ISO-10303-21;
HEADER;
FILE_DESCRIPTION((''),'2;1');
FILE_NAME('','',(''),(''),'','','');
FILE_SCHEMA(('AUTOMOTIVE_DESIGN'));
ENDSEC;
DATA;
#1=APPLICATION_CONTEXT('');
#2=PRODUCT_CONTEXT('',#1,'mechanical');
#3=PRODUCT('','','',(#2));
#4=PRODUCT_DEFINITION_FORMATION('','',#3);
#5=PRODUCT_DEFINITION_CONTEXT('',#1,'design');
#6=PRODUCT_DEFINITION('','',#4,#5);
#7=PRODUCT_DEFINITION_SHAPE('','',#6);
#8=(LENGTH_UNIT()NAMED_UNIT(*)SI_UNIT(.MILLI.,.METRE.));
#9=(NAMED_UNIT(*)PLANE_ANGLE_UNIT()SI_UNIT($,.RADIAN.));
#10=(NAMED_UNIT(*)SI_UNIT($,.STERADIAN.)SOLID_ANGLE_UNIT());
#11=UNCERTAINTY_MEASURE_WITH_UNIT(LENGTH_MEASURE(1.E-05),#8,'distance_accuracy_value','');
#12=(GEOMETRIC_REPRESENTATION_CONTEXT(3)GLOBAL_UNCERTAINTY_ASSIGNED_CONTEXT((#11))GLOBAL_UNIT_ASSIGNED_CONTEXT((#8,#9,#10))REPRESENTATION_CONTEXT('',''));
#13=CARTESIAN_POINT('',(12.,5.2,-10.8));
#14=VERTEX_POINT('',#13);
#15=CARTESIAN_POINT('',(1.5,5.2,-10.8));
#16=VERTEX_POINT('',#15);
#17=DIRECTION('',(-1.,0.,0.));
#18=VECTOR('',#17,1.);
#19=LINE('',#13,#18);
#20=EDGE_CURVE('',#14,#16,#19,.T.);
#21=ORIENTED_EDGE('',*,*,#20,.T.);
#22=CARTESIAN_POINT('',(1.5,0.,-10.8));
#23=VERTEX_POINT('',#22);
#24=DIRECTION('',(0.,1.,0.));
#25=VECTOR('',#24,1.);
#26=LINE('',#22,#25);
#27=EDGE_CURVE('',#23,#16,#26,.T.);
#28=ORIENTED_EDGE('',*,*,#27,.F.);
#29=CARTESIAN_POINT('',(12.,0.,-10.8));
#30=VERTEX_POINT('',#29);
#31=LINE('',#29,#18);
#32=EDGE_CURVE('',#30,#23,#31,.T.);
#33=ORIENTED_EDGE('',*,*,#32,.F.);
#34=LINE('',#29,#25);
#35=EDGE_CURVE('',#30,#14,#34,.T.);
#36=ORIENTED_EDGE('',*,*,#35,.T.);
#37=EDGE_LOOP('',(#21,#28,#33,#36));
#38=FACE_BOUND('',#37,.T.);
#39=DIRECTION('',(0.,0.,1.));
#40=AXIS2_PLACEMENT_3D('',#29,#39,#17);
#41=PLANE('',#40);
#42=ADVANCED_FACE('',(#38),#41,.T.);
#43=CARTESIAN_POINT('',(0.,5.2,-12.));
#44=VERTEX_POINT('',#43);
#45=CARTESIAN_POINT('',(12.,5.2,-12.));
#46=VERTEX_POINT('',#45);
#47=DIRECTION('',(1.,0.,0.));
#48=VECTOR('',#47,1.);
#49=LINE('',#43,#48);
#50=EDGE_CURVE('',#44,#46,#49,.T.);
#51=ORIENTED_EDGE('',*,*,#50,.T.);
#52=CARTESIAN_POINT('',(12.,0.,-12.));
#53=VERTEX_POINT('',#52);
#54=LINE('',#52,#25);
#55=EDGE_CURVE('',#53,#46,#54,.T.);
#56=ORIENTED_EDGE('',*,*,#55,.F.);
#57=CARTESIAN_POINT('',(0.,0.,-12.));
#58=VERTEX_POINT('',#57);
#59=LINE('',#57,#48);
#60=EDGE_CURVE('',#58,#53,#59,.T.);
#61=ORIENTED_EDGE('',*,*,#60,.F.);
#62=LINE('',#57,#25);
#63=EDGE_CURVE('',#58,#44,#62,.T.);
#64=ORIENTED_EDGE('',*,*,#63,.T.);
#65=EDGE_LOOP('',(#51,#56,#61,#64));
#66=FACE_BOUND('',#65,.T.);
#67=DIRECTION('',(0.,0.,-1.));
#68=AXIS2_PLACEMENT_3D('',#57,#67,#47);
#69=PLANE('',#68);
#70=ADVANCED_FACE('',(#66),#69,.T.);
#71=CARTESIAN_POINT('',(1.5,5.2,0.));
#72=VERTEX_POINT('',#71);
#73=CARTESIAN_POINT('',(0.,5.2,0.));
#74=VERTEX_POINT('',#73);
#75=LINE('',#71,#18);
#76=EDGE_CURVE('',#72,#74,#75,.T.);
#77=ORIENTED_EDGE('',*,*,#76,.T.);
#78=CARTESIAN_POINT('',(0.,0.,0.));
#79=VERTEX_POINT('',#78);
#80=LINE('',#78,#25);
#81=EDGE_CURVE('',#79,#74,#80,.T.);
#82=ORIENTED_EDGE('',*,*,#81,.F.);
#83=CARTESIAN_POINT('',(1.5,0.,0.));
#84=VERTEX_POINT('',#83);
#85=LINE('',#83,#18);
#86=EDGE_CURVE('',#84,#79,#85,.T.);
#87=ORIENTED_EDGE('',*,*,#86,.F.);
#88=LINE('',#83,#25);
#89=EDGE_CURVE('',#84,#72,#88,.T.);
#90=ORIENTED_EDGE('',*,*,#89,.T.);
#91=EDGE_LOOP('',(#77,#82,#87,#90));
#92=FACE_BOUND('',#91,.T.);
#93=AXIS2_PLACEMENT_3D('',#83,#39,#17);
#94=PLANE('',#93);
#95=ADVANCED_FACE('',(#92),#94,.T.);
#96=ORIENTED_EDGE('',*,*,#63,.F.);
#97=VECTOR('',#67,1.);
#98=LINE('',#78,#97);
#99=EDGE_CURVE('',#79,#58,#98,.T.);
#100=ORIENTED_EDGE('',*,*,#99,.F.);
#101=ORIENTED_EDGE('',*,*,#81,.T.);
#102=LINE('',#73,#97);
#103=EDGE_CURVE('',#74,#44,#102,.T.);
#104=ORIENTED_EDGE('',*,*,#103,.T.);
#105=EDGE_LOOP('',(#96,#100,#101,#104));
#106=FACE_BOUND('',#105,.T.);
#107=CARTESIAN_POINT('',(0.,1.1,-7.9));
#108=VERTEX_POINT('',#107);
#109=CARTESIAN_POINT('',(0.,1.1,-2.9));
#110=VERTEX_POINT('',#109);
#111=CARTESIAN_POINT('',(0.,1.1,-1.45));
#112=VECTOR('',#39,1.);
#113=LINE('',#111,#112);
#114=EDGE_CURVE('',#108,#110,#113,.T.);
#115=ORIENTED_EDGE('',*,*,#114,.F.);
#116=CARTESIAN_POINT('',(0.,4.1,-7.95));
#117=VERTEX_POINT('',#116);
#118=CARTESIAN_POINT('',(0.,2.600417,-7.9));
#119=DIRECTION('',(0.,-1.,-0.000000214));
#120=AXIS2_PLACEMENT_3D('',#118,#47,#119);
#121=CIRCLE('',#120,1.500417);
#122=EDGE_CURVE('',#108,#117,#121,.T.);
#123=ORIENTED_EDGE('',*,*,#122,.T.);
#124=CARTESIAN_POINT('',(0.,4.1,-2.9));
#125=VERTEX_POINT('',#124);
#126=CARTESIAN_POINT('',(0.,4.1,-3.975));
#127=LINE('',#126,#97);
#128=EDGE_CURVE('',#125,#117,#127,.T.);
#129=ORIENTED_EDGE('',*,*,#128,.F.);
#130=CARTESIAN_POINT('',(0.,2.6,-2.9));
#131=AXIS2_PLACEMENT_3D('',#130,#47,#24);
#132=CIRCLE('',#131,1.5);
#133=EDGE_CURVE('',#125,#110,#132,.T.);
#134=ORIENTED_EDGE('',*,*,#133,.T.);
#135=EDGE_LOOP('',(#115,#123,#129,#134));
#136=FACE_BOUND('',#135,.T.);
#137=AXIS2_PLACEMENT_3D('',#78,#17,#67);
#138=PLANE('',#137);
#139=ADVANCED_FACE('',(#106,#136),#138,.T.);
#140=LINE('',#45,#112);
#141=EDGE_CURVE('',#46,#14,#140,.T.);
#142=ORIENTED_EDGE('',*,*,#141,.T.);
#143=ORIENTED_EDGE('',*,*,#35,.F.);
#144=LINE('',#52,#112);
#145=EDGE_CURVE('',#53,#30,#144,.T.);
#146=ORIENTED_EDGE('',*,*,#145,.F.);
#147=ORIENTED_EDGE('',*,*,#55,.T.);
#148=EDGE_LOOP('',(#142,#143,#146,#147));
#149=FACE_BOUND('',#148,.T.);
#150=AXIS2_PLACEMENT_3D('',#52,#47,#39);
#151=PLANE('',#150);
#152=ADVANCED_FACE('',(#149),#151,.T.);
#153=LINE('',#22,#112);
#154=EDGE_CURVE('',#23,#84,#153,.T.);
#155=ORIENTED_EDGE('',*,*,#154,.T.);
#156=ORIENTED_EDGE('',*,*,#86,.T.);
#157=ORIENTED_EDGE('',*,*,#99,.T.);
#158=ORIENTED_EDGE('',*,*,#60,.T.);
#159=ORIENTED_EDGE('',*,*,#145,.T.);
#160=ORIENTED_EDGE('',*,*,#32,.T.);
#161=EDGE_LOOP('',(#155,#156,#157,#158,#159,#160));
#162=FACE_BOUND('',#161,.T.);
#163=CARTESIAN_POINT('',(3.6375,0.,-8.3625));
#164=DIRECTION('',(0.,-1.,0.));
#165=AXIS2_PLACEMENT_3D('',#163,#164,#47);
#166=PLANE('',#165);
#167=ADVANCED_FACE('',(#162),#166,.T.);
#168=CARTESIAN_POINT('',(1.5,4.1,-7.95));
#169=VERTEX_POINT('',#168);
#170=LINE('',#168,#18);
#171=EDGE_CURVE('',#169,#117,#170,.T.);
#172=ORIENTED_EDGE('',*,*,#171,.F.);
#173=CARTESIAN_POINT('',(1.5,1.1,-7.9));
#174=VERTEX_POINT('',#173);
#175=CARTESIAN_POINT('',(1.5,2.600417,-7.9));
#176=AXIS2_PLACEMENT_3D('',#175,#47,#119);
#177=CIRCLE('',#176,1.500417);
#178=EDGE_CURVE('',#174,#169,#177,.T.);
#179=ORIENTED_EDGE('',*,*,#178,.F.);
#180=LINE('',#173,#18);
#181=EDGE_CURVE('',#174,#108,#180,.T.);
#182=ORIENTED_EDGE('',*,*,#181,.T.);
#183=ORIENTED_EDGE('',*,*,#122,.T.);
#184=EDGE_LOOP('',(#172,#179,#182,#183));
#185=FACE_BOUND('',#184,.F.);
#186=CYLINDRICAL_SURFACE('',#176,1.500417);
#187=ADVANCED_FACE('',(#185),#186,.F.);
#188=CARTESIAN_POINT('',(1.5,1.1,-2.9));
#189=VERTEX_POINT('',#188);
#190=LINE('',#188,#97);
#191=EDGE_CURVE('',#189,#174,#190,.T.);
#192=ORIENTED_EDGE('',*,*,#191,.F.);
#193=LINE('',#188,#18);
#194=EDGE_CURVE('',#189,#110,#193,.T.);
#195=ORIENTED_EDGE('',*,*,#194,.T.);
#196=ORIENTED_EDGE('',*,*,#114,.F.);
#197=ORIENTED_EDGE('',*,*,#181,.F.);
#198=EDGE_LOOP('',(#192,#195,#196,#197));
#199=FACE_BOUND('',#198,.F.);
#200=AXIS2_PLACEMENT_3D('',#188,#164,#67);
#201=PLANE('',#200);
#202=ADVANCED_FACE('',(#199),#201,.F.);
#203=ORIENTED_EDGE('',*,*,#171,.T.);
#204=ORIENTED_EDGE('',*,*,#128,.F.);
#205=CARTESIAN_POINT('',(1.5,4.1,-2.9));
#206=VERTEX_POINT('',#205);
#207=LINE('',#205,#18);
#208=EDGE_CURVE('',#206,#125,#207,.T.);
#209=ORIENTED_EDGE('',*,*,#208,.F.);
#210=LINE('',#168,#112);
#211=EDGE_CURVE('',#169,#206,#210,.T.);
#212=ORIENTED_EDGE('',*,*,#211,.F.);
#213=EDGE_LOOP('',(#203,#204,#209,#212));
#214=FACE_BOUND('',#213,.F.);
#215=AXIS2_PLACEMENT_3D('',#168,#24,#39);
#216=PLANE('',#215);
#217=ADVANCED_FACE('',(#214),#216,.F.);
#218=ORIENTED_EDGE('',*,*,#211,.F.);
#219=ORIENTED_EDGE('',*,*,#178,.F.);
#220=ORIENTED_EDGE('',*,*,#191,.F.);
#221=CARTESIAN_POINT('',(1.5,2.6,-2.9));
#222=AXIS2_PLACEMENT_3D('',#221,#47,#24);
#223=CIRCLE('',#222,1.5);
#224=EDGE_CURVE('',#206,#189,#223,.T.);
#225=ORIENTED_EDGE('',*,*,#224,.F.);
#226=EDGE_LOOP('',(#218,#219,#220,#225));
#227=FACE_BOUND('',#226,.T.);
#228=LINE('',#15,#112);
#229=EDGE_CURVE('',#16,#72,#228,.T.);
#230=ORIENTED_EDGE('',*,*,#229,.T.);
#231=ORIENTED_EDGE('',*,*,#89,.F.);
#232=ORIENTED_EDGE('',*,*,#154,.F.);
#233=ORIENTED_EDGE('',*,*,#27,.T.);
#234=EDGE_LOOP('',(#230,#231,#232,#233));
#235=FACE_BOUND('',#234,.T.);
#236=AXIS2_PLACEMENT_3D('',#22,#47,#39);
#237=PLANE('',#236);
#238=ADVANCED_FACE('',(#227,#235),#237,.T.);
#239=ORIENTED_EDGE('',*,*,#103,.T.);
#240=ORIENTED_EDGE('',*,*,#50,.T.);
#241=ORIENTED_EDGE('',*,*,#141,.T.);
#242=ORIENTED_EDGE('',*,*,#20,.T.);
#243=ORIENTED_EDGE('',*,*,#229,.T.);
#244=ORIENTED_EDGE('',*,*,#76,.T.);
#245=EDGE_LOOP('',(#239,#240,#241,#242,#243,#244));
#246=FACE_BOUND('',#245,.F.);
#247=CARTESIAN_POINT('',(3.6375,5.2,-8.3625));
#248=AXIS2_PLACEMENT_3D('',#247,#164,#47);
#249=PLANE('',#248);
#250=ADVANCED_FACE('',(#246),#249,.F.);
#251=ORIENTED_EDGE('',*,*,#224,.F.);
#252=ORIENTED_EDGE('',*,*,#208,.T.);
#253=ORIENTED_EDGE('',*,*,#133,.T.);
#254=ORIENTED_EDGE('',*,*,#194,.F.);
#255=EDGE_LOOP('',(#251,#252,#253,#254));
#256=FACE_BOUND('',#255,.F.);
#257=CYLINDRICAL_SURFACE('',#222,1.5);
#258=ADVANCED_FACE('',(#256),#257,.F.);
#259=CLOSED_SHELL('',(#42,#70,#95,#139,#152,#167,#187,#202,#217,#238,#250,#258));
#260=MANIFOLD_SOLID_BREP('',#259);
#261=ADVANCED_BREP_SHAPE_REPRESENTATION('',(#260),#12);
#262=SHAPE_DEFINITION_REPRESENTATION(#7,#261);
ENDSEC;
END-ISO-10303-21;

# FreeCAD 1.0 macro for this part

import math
import FreeCAD as App
import Part
import Sketcher
Q = App.Units.Quantity


def add_polygon(sketch, points):
    """Adds a closed chain of lines whose ends are joined by coincident constraints."""
    first, n = sketch.GeometryCount, len(points)
    for a, b in zip(points, points[1:] + points[:1]):
        sketch.addGeometry(Part.LineSegment(App.Vector(*a, 0), App.Vector(*b, 0)), False)
    for i in range(n):
        sketch.addConstraint(Sketcher.Constraint("Coincident", first + i, 2, first + (i + 1) % n, 1))

doc = App.newDocument("Part")
params = doc.addObject("Spreadsheet::Sheet", "Params")
for row, (alias, value) in enumerate([
    ("sketch1_width", "12 mm"),
    ("sketch1_width2", "1.5 mm"),
    ("sketch1_height", "1.2 mm"),
    ("pad1_length", "5.2 mm"),
    ("sketch2_radius", "1.5 mm"),
    ("sketch2_height", "5 mm"),
    ("sketch2_height2", "5.05 mm"),
    ("pocket1_length", "25.4 mm"),
], start=1):
    params.set(f"A{row}", alias)
    params.set(f"B{row}", "=" + value)
    params.setAlias(f"B{row}", alias)

body = doc.addObject("PartDesign::Body", "Body")

# Sketch on XZ plane
sketch1 = body.newObject("Sketcher::SketchObject", "Sketch")
sketch1.AttachmentSupport = (doc.getObject("XZ_Plane"), [""])
sketch1.MapMode = "FlatFace"
add_polygon(sketch1, [(1.5, 0), (0, 0), (0, -12), (12, -12), (12, -10.8), (1.5, -10.8)])  # lines 0-5
sketch1.addConstraint([
    Sketcher.Constraint("Horizontal", 0),
    Sketcher.Constraint("Vertical", 1),
    Sketcher.Constraint("Horizontal", 2),
    Sketcher.Constraint("Vertical", 3),
    Sketcher.Constraint("Horizontal", 4),
    Sketcher.Constraint("Vertical", 5),
    Sketcher.Constraint("Coincident", 0, 2, -1, 1),
    Sketcher.Constraint("Equal", 2, 1),
    Sketcher.Constraint("DistanceX", 2, 1, 2, 2, Q("12 mm")),
    Sketcher.Constraint("DistanceX", 0, 2, 0, 1, Q("1.5 mm")),
    Sketcher.Constraint("DistanceY", 3, 1, 3, 2, Q("1.2 mm")),
])
sketch1.setExpression("Constraints[14]", "Params.sketch1_width")
sketch1.setExpression("Constraints[15]", "Params.sketch1_width2")
sketch1.setExpression("Constraints[16]", "Params.sketch1_height")
pad1 = body.newObject("PartDesign::Pad", "Pad")
pad1.Profile = sketch1
pad1.setExpression("Length", "Params.pad1_length")
pad1.Reversed = True

# Sketch on YZ plane
sketch2 = body.newObject("Sketcher::SketchObject", "Sketch001")
sketch2.AttachmentSupport = (doc.getObject("YZ_Plane"), [""])
sketch2.MapMode = "FlatFace"
sketch2.AttachmentOffset = App.Placement(App.Vector(0, 0, 1.5), App.Rotation())
sketch2.addGeometry([
    Part.LineSegment(App.Vector(1.1, -2.9, 0), App.Vector(1.1, -7.9, 0)),
    Part.ArcOfCircle(Part.Circle(App.Vector(2.6, -7.9, 0), App.Vector(0, 0, 1), 1.5), math.radians(-180), math.radians(-2)),
    Part.LineSegment(App.Vector(4.1, -8, 0), App.Vector(4.1, -2.9, 0)),
    Part.ArcOfCircle(Part.Circle(App.Vector(2.6, -2.9, 0), App.Vector(0, 0, 1), 1.5), math.radians(0), math.radians(180)),
], False)
sketch2.addConstraint([
    Sketcher.Constraint("Tangent", 0, 2, 1, 1),
    Sketcher.Constraint("Coincident", 1, 2, 2, 1),
    Sketcher.Constraint("Tangent", 2, 2, 3, 1),
    Sketcher.Constraint("Tangent", 3, 2, 0, 1),
    Sketcher.Constraint("Vertical", 0),
    Sketcher.Constraint("Vertical", 2),
    Sketcher.Constraint("Radius", 3, Q("1.5 mm")),
    Sketcher.Constraint("DistanceY", 0, 2, 0, 1, Q("5 mm")),
    Sketcher.Constraint("DistanceY", 2, 1, 2, 2, Q("5.05 mm")),
    Sketcher.Constraint("DistanceY", 1, 3, -1, 1, Q("7.9 mm")),
    Sketcher.Constraint("DistanceX", -1, 1, 3, 3, Q("2.6 mm")),
])
sketch2.setExpression("Constraints[6]", "Params.sketch2_radius")
sketch2.setExpression("Constraints[7]", "Params.sketch2_height")
sketch2.setExpression("Constraints[8]", "Params.sketch2_height2")
pocket1 = body.newObject("PartDesign::Pocket", "Pocket")
pocket1.Profile = sketch2
pocket1.setExpression("Length", "Params.pocket1_length")

doc.recompute()
